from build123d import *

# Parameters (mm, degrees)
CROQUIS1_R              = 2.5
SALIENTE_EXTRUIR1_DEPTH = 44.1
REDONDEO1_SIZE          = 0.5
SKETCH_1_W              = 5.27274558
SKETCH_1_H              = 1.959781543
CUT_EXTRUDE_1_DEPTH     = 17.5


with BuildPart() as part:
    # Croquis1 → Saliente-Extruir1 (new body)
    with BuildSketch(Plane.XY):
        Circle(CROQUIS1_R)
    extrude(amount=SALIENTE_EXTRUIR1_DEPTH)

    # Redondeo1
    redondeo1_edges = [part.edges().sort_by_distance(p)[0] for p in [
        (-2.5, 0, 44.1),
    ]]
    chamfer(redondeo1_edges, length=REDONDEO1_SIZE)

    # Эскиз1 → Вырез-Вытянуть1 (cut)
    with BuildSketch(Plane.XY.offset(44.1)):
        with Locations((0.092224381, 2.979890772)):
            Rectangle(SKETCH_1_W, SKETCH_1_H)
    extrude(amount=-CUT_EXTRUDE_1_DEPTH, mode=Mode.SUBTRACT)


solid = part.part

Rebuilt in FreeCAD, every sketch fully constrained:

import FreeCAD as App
import Part
import Sketcher
from FreeCAD import Vector


def edges_at(feature, points):
    """Names of the edges that pass closest to the given points."""
    edges = feature.Shape.Edges
    near = lambda p: min(range(len(edges)), key=lambda i: edges[i].distToShape(Part.Vertex(*p))[0])
    return sorted({f"Edge{near(p) + 1}" for p in points})


def add_polygon(sketch, points):
    """Adds a closed chain of lines whose ends are joined by coincident constraints."""
    first, n = sketch.GeometryCount, len(points)
    for a, b in zip(points, points[1:] + points[:1]):
        sketch.addGeometry(Part.LineSegment(App.Vector(*a, 0), App.Vector(*b, 0)), False)
    for i in range(n):
        sketch.addConstraint(Sketcher.Constraint("Coincident", first + i, 2, first + (i + 1) % n, 1))

doc = App.newDocument("Part")
body = doc.addObject("PartDesign::Body", "Body")

# Sketch on XY plane
sketch1 = body.newObject("Sketcher::SketchObject", "Sketch")
sketch1.AttachmentSupport = (doc.getObject("XY_Plane"), [""])
sketch1.MapMode = "FlatFace"
sketch1.addGeometry(Part.Circle(Vector(0, 0, 0), Vector(0, 0, 1), 2.5), False)
sketch1.addConstraint([
    Sketcher.Constraint("Coincident", 0, 3, -1, 1),
    Sketcher.Constraint("Diameter", 0, 5.0),
])
pad1 = body.newObject("PartDesign::Pad", "Pad")
pad1.Profile = sketch1
pad1.Length = 44.1
doc.recompute()

chamfer = body.newObject("PartDesign::Chamfer", "Chamfer")
chamfer.Base = (pad1, edges_at(pad1, [(-2.5, 0, 44.1)]))
chamfer.Size = 0.5

# Sketch on XY plane
sketch2 = body.newObject("Sketcher::SketchObject", "Sketch001")
sketch2.AttachmentSupport = (doc.getObject("XY_Plane"), [""])
sketch2.MapMode = "FlatFace"
sketch2.AttachmentOffset = App.Placement(Vector(0, 0, 44.1), App.Rotation())
add_polygon(sketch2, [(-2.5, 4), (-2.5, 2), (2.7, 2), (2.7, 4)])  # lines 0-3
sketch2.addConstraint([
    Sketcher.Constraint("Vertical", 0),
    Sketcher.Constraint("Horizontal", 1),
    Sketcher.Constraint("Vertical", 2),
    Sketcher.Constraint("Horizontal", 3),
    Sketcher.Constraint("DistanceY", -1, 1, 0, 2, 2.0),
    Sketcher.Constraint("DistanceY", 0, 2, 0, 1, 1.959782),
    Sketcher.Constraint("DistanceX", 1, 1, 1, 2, 5.272746),
    Sketcher.Constraint("DistanceX", 0, 2, -1, 1, 2.544148),
])
pocket1 = body.newObject("PartDesign::Pocket", "Pocket")
pocket1.Profile = sketch2
pocket1.Length = 17.5

doc.recompute()
